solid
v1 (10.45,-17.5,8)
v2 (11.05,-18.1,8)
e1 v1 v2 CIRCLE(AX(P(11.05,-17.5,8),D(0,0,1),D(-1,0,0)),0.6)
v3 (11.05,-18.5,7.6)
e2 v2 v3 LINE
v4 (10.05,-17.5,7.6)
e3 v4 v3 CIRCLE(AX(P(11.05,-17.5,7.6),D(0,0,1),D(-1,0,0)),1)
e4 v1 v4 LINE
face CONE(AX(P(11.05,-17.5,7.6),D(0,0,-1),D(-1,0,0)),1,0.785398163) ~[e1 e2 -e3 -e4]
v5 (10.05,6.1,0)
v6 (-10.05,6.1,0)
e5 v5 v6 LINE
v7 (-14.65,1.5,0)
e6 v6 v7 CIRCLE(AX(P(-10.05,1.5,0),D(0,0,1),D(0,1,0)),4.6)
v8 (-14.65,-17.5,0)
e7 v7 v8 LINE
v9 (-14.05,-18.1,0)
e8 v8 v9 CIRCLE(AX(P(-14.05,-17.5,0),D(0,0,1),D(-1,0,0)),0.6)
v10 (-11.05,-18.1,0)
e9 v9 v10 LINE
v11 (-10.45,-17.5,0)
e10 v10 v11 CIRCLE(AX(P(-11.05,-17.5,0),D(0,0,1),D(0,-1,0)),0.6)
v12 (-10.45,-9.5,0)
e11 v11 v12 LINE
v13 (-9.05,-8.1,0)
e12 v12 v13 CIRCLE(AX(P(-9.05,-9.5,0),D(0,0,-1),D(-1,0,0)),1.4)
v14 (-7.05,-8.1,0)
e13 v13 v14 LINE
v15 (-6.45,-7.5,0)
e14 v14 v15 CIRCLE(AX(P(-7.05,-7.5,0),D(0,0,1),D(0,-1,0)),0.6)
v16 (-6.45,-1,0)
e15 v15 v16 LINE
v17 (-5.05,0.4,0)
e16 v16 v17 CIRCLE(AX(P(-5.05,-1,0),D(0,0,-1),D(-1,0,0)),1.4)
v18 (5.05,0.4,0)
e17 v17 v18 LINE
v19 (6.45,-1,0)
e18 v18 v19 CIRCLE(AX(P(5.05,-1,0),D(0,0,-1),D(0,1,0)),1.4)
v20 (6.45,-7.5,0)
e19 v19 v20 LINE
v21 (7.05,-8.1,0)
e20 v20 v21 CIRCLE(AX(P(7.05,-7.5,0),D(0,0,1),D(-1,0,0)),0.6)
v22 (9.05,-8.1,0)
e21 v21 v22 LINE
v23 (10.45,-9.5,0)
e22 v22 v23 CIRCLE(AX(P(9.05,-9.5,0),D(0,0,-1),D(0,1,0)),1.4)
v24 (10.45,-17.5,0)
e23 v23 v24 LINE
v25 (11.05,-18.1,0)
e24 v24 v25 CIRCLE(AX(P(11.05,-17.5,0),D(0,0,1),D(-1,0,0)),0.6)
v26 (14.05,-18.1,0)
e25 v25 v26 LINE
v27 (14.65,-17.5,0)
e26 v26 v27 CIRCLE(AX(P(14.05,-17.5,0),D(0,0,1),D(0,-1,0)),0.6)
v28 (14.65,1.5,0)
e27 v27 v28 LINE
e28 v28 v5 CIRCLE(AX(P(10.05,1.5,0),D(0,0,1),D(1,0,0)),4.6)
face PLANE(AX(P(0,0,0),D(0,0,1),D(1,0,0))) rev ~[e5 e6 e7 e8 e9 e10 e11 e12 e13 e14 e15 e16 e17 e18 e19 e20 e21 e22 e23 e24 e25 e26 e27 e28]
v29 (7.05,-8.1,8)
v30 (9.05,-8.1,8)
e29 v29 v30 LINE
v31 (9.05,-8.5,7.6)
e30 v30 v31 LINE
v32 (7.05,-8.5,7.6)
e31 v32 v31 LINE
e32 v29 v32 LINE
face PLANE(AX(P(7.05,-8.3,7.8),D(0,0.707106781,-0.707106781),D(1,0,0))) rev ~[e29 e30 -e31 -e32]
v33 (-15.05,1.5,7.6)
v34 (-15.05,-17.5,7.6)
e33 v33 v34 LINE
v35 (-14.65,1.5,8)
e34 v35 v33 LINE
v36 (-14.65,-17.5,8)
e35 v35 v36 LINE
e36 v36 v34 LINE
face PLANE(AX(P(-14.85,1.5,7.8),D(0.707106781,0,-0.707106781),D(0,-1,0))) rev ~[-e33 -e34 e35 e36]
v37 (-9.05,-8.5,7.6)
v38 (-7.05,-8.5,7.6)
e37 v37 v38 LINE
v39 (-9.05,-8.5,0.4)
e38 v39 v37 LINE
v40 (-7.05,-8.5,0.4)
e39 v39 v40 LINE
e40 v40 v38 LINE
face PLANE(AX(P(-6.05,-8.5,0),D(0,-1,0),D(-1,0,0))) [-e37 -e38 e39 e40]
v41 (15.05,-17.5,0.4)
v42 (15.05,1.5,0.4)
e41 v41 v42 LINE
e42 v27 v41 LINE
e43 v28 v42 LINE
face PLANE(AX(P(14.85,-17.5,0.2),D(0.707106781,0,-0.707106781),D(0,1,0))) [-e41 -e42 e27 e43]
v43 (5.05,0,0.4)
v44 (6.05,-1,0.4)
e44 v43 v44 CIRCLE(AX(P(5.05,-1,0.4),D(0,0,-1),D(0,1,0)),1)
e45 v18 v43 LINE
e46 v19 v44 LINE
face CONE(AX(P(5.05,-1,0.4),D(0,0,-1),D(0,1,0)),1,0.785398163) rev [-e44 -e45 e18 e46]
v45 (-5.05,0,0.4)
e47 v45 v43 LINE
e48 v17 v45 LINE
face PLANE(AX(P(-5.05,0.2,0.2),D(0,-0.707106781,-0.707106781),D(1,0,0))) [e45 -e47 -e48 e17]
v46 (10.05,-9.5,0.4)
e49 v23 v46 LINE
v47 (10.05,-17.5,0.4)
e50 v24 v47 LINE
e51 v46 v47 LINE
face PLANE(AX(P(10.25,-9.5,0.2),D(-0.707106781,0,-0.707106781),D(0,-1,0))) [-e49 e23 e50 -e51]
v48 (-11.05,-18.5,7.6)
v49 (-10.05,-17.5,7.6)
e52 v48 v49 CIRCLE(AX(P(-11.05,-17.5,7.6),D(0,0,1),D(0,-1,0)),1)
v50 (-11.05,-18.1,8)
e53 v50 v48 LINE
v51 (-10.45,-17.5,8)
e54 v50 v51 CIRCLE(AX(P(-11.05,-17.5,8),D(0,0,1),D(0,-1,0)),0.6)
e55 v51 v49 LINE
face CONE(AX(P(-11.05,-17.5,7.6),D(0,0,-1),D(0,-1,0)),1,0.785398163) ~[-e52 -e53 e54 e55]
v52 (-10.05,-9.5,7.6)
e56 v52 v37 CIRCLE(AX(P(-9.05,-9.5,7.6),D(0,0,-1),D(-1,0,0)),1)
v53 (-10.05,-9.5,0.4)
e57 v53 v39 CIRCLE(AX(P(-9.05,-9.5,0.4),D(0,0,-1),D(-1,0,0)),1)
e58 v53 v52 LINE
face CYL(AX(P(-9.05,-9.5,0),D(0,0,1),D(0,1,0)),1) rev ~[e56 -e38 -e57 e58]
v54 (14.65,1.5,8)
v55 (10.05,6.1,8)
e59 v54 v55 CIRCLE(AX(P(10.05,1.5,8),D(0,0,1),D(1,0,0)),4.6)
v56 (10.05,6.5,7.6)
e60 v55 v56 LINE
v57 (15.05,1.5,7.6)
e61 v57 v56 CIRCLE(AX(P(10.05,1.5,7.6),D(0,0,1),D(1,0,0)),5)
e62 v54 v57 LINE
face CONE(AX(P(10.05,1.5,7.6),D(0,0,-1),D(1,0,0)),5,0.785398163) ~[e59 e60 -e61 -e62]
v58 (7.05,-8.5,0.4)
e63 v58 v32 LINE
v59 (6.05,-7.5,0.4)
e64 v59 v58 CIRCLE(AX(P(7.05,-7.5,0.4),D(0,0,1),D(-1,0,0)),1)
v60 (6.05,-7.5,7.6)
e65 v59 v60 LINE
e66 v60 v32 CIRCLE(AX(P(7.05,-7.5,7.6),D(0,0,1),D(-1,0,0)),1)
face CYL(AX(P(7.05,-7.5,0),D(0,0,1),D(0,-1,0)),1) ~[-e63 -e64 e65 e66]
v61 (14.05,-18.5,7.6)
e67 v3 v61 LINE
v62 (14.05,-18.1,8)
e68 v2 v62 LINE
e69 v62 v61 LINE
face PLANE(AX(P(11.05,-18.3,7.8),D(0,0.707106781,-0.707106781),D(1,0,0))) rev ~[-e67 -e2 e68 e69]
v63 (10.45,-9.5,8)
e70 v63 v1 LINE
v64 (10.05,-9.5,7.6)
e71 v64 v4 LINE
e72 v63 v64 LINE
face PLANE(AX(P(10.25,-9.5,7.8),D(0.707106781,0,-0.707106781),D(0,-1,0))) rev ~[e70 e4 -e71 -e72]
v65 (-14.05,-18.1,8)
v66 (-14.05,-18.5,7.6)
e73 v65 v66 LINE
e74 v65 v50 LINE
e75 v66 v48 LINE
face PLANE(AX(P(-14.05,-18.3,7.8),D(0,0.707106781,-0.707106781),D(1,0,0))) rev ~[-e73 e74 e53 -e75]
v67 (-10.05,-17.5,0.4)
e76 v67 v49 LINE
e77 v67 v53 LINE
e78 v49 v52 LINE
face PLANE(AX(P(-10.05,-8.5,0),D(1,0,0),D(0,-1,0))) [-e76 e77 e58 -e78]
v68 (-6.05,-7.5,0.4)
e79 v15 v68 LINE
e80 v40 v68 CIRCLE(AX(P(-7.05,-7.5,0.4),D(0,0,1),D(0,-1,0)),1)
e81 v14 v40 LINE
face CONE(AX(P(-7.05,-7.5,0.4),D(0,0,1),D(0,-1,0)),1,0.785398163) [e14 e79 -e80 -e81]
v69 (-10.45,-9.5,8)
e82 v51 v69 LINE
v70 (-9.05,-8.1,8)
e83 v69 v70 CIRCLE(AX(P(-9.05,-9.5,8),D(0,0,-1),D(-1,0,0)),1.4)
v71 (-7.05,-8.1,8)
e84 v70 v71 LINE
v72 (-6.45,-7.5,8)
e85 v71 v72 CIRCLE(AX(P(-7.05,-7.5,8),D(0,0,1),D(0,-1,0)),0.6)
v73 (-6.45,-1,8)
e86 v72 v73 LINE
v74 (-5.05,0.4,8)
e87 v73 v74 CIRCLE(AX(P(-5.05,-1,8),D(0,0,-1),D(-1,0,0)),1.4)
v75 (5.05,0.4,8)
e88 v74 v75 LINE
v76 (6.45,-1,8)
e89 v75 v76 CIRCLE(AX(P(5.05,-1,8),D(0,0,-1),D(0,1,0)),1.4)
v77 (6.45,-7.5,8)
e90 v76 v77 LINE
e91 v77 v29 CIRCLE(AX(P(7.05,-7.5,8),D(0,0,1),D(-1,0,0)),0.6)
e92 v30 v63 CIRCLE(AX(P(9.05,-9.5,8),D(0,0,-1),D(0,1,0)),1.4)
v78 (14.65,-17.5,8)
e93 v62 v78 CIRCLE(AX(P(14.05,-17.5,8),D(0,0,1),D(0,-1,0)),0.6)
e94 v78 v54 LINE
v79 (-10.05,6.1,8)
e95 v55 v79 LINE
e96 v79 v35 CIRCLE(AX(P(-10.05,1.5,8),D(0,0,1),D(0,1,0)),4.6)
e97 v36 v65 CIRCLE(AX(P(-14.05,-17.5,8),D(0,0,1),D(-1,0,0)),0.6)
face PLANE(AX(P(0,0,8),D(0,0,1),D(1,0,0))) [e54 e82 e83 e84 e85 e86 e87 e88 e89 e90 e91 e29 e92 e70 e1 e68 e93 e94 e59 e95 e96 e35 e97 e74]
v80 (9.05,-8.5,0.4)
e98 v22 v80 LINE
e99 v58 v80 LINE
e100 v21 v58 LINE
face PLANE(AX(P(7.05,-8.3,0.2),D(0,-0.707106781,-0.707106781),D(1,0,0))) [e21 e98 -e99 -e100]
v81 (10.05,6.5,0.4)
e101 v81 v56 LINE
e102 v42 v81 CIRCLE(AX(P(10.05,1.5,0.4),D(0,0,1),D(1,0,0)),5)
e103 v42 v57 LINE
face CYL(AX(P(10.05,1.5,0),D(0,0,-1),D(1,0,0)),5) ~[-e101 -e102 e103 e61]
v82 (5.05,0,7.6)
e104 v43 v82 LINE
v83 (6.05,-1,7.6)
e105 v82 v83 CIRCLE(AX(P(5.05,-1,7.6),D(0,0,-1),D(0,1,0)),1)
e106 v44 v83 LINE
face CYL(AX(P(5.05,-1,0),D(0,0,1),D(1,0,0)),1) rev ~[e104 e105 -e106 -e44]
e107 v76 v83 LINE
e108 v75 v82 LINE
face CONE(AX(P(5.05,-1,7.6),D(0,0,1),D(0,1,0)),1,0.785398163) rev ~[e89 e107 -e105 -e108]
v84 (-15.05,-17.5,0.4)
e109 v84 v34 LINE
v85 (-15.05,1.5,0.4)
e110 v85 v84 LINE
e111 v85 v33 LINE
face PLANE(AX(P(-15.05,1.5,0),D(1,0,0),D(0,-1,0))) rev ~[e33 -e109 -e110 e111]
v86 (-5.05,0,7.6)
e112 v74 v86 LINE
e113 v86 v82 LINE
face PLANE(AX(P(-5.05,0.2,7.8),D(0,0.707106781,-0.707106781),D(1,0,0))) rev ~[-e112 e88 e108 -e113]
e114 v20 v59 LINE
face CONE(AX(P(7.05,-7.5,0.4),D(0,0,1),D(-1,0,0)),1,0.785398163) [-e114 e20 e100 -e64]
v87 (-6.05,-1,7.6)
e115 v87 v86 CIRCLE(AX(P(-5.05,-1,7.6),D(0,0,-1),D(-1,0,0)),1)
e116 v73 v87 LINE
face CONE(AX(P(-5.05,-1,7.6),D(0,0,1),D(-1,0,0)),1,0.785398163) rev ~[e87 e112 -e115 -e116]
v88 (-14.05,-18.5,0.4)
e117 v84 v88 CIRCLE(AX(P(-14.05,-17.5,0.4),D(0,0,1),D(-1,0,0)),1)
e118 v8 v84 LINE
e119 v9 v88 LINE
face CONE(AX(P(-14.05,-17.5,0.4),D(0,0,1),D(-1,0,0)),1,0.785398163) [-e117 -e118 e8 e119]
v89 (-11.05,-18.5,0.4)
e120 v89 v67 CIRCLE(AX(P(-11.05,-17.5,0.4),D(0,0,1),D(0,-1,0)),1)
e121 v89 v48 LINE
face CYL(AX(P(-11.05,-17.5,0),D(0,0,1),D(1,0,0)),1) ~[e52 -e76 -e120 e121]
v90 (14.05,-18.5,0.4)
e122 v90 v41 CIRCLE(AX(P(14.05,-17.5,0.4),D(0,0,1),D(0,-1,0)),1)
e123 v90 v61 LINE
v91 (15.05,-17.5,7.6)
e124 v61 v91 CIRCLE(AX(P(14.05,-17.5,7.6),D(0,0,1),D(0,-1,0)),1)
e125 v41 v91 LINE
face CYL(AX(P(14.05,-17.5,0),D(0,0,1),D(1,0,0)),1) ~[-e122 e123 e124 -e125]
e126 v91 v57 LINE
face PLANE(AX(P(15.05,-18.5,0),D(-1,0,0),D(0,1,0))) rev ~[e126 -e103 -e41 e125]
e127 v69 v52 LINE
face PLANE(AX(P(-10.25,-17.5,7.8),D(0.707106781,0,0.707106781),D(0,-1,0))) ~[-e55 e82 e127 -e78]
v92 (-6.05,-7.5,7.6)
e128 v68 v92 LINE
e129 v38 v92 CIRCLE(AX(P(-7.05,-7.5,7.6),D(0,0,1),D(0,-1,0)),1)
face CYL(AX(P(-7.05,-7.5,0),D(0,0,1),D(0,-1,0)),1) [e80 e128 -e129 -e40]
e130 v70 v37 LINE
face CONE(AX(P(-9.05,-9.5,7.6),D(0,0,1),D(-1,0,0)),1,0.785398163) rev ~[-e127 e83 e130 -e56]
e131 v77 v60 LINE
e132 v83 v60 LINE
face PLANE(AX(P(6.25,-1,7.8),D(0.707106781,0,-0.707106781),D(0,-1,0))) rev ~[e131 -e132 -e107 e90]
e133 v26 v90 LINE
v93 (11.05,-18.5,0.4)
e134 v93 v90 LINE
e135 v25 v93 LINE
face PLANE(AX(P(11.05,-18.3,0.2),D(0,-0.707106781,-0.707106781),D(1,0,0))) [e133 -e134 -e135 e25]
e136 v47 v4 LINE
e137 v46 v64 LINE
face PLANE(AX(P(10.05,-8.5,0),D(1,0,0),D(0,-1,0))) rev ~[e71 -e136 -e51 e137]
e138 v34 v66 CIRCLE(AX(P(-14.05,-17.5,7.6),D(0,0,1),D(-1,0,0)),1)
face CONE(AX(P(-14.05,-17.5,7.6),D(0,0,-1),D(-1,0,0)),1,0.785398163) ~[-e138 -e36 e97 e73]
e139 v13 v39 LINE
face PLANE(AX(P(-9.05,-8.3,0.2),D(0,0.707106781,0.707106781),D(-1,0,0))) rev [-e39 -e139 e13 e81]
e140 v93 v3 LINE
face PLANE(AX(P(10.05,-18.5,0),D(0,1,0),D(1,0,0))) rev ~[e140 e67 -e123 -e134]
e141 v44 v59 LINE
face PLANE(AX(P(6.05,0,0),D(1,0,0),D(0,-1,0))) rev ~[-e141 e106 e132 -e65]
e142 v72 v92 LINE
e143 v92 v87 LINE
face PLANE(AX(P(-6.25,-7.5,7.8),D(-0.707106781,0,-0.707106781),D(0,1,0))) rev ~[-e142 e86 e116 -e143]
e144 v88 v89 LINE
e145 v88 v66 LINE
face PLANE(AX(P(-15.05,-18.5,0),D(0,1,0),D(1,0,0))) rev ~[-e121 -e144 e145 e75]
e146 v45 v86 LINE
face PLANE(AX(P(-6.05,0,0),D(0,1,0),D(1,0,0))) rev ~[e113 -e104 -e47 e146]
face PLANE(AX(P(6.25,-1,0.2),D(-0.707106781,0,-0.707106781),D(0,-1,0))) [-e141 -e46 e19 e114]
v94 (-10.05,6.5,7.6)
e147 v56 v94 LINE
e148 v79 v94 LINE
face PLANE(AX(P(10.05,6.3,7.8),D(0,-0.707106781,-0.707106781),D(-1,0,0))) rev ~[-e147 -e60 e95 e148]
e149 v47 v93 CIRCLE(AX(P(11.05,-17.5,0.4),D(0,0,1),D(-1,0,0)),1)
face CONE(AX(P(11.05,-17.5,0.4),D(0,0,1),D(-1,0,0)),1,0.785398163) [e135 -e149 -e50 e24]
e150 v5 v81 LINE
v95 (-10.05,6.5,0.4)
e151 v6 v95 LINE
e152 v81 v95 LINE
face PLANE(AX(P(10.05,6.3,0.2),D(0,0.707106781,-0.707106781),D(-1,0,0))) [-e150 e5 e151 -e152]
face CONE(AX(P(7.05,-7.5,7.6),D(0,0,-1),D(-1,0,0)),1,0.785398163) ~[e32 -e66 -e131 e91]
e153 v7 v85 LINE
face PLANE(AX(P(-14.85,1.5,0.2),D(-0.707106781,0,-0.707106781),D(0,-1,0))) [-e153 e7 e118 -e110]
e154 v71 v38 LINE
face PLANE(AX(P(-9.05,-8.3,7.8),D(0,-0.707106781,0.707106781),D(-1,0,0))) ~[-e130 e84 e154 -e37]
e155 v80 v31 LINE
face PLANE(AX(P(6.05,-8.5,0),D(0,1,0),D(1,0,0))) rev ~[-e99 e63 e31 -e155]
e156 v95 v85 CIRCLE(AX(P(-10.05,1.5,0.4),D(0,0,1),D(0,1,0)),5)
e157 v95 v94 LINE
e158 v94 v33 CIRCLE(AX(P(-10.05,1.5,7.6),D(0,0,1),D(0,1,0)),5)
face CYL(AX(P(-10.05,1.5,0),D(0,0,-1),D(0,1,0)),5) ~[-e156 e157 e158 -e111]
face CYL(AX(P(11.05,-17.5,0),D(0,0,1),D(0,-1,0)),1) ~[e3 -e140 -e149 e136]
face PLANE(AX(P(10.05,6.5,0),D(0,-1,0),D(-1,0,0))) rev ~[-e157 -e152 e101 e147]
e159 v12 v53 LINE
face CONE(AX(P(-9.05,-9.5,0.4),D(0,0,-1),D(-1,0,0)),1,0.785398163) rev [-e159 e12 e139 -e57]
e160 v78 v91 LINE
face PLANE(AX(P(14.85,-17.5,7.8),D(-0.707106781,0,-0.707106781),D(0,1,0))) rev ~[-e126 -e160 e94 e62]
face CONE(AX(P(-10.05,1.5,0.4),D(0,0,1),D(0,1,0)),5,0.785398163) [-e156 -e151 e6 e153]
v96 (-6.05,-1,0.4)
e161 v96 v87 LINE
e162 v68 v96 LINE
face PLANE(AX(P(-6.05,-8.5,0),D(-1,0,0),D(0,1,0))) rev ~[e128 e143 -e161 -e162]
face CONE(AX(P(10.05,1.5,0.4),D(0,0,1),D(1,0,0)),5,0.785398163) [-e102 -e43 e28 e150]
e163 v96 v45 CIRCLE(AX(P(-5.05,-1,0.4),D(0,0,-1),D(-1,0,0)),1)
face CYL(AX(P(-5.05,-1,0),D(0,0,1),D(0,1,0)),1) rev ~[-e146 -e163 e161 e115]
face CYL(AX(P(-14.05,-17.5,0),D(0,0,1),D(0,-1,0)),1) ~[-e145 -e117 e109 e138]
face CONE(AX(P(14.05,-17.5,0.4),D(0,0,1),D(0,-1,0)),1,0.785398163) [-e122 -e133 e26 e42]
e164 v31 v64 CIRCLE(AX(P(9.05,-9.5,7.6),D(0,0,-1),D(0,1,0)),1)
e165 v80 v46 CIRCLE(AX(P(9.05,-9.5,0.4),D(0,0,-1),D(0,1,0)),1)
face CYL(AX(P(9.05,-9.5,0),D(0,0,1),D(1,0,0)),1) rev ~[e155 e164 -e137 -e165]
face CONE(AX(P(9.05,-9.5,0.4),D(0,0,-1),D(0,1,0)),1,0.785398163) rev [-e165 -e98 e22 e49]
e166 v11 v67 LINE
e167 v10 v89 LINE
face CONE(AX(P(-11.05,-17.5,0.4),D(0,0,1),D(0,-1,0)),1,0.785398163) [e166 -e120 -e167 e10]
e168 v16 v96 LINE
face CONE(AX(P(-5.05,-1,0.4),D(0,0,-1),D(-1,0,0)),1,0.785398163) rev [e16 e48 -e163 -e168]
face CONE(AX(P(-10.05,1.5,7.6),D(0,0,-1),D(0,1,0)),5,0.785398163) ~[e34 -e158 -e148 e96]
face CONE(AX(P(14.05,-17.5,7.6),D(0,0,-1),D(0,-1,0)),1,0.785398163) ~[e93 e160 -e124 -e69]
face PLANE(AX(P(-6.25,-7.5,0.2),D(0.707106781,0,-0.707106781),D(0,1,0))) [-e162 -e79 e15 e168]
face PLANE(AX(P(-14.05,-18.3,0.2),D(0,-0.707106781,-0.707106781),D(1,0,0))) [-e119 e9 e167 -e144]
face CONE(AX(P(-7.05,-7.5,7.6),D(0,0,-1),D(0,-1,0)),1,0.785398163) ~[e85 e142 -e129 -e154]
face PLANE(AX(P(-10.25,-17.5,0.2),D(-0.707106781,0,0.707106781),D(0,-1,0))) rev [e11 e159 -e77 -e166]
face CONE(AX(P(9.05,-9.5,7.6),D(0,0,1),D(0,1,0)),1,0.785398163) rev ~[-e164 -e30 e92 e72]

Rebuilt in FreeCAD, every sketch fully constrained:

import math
import FreeCAD as App
import Part
import Sketcher
Q = App.Units.Quantity


def edges_at(feature, points):
    """Names of the edges that pass closest to the given points."""
    edges = feature.Shape.Edges
    near = lambda p: min(range(len(edges)), key=lambda i: edges[i].distToShape(Part.Vertex(*p))[0])
    return sorted({f"Edge{near(p) + 1}" for p in points})

doc = App.newDocument("Part")
body = doc.addObject("PartDesign::Body", "Body")

sketch1 = doc.addObject("Sketcher::SketchObject", "Sketch")
body.addObject(sketch1)
sketch1.AttachmentSupport = (doc.XY_Plane, [""])
sketch1.MapMode = "FlatFace"
sketch1.addGeometry(Part.LineSegment(App.Vector(-10.1, -8.5, 0), App.Vector(-6, -8.5, 0)), False)
sketch1.addGeometry(Part.LineSegment(App.Vector(-6, -8.5, 0), App.Vector(-6, 0, 0)), False)
sketch1.addGeometry(Part.LineSegment(App.Vector(-6, 0, 0), App.Vector(6, 0, 0)), False)
sketch1.addGeometry(Part.LineSegment(App.Vector(6, 0, 0), App.Vector(6, -8.5, 0)), False)
sketch1.addGeometry(Part.LineSegment(App.Vector(6, -8.5, 0), App.Vector(10.1, -8.5, 0)), False)
sketch1.addGeometry(Part.LineSegment(App.Vector(10.1, -8.5, 0), App.Vector(10.1, -18.5, 0)), False)
sketch1.addGeometry(Part.LineSegment(App.Vector(10.1, -18.5, 0), App.Vector(15.1, -18.5, 0)), False)
sketch1.addGeometry(Part.LineSegment(App.Vector(15.1, -18.5, 0), App.Vector(15.1, 1.5, 0)), False)
sketch1.addGeometry(Part.ArcOfCircle(Part.Circle(App.Vector(10.1, 1.5, 0), App.Vector(0, 0, 1), 5), math.radians(0), math.radians(90)), False)
sketch1.addGeometry(Part.LineSegment(App.Vector(10.1, 6.5, 0), App.Vector(-10.1, 6.5, 0)), False)
sketch1.addGeometry(Part.ArcOfCircle(Part.Circle(App.Vector(-10.1, 1.5, 0), App.Vector(0, 0, 1), 5), math.radians(90), math.radians(180)), False)
sketch1.addGeometry(Part.LineSegment(App.Vector(-15.1, 1.5, 0), App.Vector(-15.1, -18.5, 0)), False)
sketch1.addGeometry(Part.LineSegment(App.Vector(-15.1, -18.5, 0), App.Vector(-10.1, -18.5, 0)), False)
sketch1.addGeometry(Part.LineSegment(App.Vector(-10.1, -18.5, 0), App.Vector(-10.1, -8.5, 0)), False)
sketch1.addConstraint(Sketcher.Constraint("Coincident", 0, 2, 1, 1))
sketch1.addConstraint(Sketcher.Constraint("Coincident", 1, 2, 2, 1))
sketch1.addConstraint(Sketcher.Constraint("Coincident", 2, 2, 3, 1))
sketch1.addConstraint(Sketcher.Constraint("Coincident", 3, 2, 4, 1))
sketch1.addConstraint(Sketcher.Constraint("Coincident", 4, 2, 5, 1))
sketch1.addConstraint(Sketcher.Constraint("Coincident", 5, 2, 6, 1))
sketch1.addConstraint(Sketcher.Constraint("Coincident", 6, 2, 7, 1))
sketch1.addConstraint(Sketcher.Constraint("Tangent", 7, 2, 8, 1))
sketch1.addConstraint(Sketcher.Constraint("Tangent", 8, 2, 9, 1))
sketch1.addConstraint(Sketcher.Constraint("Tangent", 9, 2, 10, 1))
sketch1.addConstraint(Sketcher.Constraint("Tangent", 10, 2, 11, 1))
sketch1.addConstraint(Sketcher.Constraint("Coincident", 11, 2, 12, 1))
sketch1.addConstraint(Sketcher.Constraint("Coincident", 12, 2, 13, 1))
sketch1.addConstraint(Sketcher.Constraint("Coincident", 13, 2, 0, 1))
sketch1.addConstraint(Sketcher.Constraint("Horizontal", 0))
sketch1.addConstraint(Sketcher.Constraint("Vertical", 1))
sketch1.addConstraint(Sketcher.Constraint("Horizontal", 2))
sketch1.addConstraint(Sketcher.Constraint("Vertical", 3))
sketch1.addConstraint(Sketcher.Constraint("Horizontal", 4))
sketch1.addConstraint(Sketcher.Constraint("Vertical", 5))
sketch1.addConstraint(Sketcher.Constraint("Horizontal", 6))
sketch1.addConstraint(Sketcher.Constraint("Vertical", 7))
sketch1.addConstraint(Sketcher.Constraint("Horizontal", 9))
sketch1.addConstraint(Sketcher.Constraint("Vertical", 11))
sketch1.addConstraint(Sketcher.Constraint("Horizontal", 12))
sketch1.addConstraint(Sketcher.Constraint("Vertical", 13))
sketch1.addConstraint(Sketcher.Constraint("Equal", 8, 10))
sketch1.addConstraint(Sketcher.Constraint("Symmetric", 1, 2, 2, 2, -1, 1))
sketch1.addConstraint(Sketcher.Constraint("Symmetric", 6, 2, 11, 2, -2))
sketch1.addConstraint(Sketcher.Constraint("Symmetric", 4, 2, 13, 2, -2))
sketch1.addConstraint(Sketcher.Constraint("Vertical", 8, 3, 4, 2))
sketch1.addConstraint(Sketcher.Constraint("Radius", 8, Q("5 mm")))
sketch1.addConstraint(Sketcher.Constraint("DistanceY", 5, 2, 5, 1, Q("10 mm")))
sketch1.addConstraint(Sketcher.Constraint("DistanceX", 2, 1, 2, 2, Q("12.1 mm")))
sketch1.addConstraint(Sketcher.Constraint("DistanceX", 9, 2, 9, 1, Q("20.1 mm")))
sketch1.addConstraint(Sketcher.Constraint("DistanceY", 1, 1, 1, 2, Q("8.5 mm")))
sketch1.addConstraint(Sketcher.Constraint("DistanceY", 0, 2, 10, 3, Q("10 mm")))
pad1 = doc.addObject("PartDesign::Pad", "Pad")
body.addObject(pad1)
pad1.Profile = sketch1
pad1.Length = 8
doc.recompute()

fillet = doc.addObject("PartDesign::Fillet", "Fillet")
body.addObject(fillet)
fillet.Base = (pad1, edges_at(pad1, [
    (6.05, 0, 4),
    (-6.05, 0, 4),
    (-6.05, -8.5, 4),
    (-10.05, -8.5, 4),
    (-10.05, -18.5, 4),
    (-15.05, -18.5, 4),
    (6.05, -8.5, 4),
    (10.05, -8.5, 4),
    (10.05, -18.5, 4),
    (15.05, -18.5, 4),
]))
fillet.Radius = 1
doc.recompute()

chamfer = doc.addObject("PartDesign::Chamfer", "Chamfer")
body.addObject(chamfer)
chamfer.Base = (fillet, edges_at(fillet, [
    (12.55, -18.5, 0),
    (14.757, -18.207, 0),
    (15.05, -8, 0),
    (13.585, 5.035, 0),
    (0, 6.5, 0),
    (-13.585, 5.035, 0),
    (-15.05, -8, 0),
    (-14.757, -18.207, 0),
    (-12.55, -18.5, 0),
    (-10.343, -18.207, 0),
    (-10.05, -13.5, 0),
    (-9.757, -8.793, 0),
    (-8.05, -8.5, 0),
    (-6.343, -8.207, 0),
    (-6.05, -4.25, 0),
    (-5.757, -0.293, 0),
    (0, 0, 0),
    (5.757, -0.293, 0),
    (6.05, -4.25, 0),
    (6.343, -8.207, 0),
    (8.05, -8.5, 0),
    (9.757, -8.793, 0),
    (10.05, -13.5, 0),
    (10.343, -18.207, 0),
    (12.55, -18.5, 8),
    (14.757, -18.207, 8),
    (15.05, -8, 8),
    (13.585, 5.035, 8),
    (0, 6.5, 8),
    (-13.585, 5.035, 8),
    (-15.05, -8, 8),
    (-14.757, -18.207, 8),
    (-12.55, -18.5, 8),
    (-10.343, -18.207, 8),
    (-10.05, -13.5, 8),
    (-9.757, -8.793, 8),
    (-8.05, -8.5, 8),
    (-6.343, -8.207, 8),
    (-6.05, -4.25, 8),
    (-5.757, -0.293, 8),
    (0, 0, 8),
    (5.757, -0.293, 8),
    (6.05, -4.25, 8),
    (6.343, -8.207, 8),
    (8.05, -8.5, 8),
    (9.757, -8.793, 8),
    (10.05, -13.5, 8),
    (10.343, -18.207, 8),
]))
chamfer.Size = 0.4

doc.recompute()
